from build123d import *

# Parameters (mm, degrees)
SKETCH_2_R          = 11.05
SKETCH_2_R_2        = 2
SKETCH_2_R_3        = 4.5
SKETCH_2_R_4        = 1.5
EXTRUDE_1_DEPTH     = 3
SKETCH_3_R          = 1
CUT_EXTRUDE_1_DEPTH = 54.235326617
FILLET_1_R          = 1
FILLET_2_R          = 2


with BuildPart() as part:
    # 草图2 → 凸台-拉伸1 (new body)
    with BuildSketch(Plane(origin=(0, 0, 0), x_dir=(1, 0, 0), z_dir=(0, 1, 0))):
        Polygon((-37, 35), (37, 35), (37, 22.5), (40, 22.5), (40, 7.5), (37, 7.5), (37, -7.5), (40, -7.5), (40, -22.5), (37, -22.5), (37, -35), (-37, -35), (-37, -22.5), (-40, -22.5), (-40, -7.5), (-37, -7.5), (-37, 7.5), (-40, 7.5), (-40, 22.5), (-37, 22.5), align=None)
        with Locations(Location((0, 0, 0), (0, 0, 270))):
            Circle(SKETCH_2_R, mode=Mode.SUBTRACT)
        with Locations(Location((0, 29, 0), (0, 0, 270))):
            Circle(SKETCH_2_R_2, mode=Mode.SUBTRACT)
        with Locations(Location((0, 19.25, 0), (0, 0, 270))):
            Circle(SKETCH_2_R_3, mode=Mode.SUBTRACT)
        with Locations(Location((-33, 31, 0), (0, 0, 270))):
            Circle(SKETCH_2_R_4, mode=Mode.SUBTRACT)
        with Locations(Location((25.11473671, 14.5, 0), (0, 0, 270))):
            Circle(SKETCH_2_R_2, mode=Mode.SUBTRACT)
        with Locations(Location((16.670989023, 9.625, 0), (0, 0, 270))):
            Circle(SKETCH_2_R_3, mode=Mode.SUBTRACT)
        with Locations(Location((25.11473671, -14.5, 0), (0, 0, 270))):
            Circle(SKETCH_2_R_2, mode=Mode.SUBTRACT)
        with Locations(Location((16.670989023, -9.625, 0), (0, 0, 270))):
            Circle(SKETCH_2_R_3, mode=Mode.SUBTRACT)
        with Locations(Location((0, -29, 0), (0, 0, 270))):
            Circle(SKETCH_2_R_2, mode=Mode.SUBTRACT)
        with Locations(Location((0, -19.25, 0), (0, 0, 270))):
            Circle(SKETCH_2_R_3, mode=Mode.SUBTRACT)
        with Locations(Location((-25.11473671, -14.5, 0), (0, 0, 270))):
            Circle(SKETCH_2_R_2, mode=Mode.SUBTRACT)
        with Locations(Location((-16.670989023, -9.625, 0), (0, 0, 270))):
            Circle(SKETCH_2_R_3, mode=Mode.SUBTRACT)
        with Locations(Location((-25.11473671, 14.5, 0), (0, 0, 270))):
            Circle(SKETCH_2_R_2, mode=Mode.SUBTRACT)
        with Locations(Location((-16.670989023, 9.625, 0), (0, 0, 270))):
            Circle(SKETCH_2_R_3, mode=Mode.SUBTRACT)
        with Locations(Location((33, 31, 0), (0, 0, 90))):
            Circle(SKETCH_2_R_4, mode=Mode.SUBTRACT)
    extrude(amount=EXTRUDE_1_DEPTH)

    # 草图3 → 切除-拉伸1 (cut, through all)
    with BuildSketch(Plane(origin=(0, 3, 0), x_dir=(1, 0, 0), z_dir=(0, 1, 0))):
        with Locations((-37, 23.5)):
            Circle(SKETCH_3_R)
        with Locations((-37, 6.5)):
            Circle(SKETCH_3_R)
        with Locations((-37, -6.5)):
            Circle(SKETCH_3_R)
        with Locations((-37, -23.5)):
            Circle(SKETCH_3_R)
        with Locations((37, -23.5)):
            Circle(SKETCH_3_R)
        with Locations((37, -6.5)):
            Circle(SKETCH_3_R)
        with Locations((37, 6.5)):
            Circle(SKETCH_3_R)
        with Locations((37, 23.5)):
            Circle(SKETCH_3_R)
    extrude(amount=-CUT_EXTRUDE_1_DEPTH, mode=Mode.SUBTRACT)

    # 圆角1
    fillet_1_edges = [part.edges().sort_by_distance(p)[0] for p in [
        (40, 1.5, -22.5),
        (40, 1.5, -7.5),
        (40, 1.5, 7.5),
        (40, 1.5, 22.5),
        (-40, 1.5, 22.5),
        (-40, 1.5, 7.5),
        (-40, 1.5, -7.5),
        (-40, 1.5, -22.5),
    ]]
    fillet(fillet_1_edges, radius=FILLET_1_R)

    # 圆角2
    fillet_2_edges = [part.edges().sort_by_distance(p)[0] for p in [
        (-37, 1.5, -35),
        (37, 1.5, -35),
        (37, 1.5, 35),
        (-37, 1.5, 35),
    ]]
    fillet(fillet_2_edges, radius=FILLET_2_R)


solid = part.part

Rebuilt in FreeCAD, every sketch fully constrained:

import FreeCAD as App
import Part
import Sketcher

V = App.Vector


def edges_at(feature, points):
    """Names of the edges that pass closest to the given points."""
    edges = feature.Shape.Edges
    near = lambda p: min(range(len(edges)), key=lambda i: edges[i].distToShape(Part.Vertex(*p))[0])
    return sorted({f"Edge{near(p) + 1}" for p in points})


def add_polygon(sketch, points):
    """Adds a closed chain of lines whose ends are joined by coincident constraints."""
    first, n = sketch.GeometryCount, len(points)
    for a, b in zip(points, points[1:] + points[:1]):
        sketch.addGeometry(Part.LineSegment(App.Vector(*a, 0), App.Vector(*b, 0)), False)
    for i in range(n):
        sketch.addConstraint(Sketcher.Constraint("Coincident", first + i, 2, first + (i + 1) % n, 1))

doc = App.newDocument("Part")
params = doc.addObject("Spreadsheet::Sheet", "Params")
for row, (alias, value) in enumerate([
    ("sketch1_diameter", "4 mm"),
    ("sketch1_diameter2", "9 mm"),
    ("sketch1_diameter3", "3 mm"),
    ("sketch1_diameter4", "22.1 mm"),
    ("sketch1_width", "74 mm"),
    ("pad1_length", "3 mm"),
    ("sketch2_diameter", "2 mm"),
    ("fillet_radius", "1 mm"),
    ("fillet2_radius", "2 mm"),
], start=1):
    params.set(f"A{row}", alias)
    params.set(f"B{row}", "=" + value)
    params.setAlias(f"B{row}", alias)

body = doc.addObject("PartDesign::Body", "Body")

# Sketch on XZ plane
sketch1 = body.newObject("Sketcher::SketchObject", "Sketch")
sketch1.AttachmentSupport = (doc.getObject("XZ_Plane"), [""])
sketch1.MapMode = "FlatFace"
add_polygon(sketch1, [(37, -35), (-37, -35), (-37, -22.5), (-40, -22.5), (-40, -7.5), (-37, -7.5), (-37, 7.5), (-40, 7.5), (-40, 22.5), (-37, 22.5), (-37, 35), (37, 35), (37, 22.5), (40, 22.5), (40, 7.5), (37, 7.5), (37, -7.5), (40, -7.5), (40, -22.5), (37, -22.5)])  # lines 0-19
sketch1.addGeometry(Part.Circle(V(25.1, 14.5, 0), V(0, 0, 1), 2), False)  # 20
sketch1.addGeometry(Part.Circle(V(16.7, 9.6, 0), V(0, 0, 1), 4.5), False)  # 21
sketch1.addGeometry(Part.Circle(V(0, 29, 0), V(0, 0, 1), 2), False)  # 22
sketch1.addGeometry(Part.Circle(V(0, 19.2, 0), V(0, 0, 1), 4.5), False)  # 23
sketch1.addGeometry(Part.Circle(V(-16.7, 9.6, 0), V(0, 0, 1), 4.5), False)  # 24
sketch1.addGeometry(Part.Circle(V(0, 0, 0), V(0, 0, 1), 11.1), False)  # 25
sketch1.addGeometry(Part.Circle(V(-25.1, 14.5, 0), V(0, 0, 1), 2), False)  # 26
sketch1.addGeometry(Part.Circle(V(25.1, -14.5, 0), V(0, 0, 1), 2), False)  # 27
sketch1.addGeometry(Part.Circle(V(16.7, -9.6, 0), V(0, 0, 1), 4.5), False)  # 28
sketch1.addGeometry(Part.Circle(V(33, -31, 0), V(0, 0, 1), 1.5), False)  # 29
sketch1.addGeometry(Part.Circle(V(-16.7, -9.6, 0), V(0, 0, 1), 4.5), False)  # 30
sketch1.addGeometry(Part.Circle(V(-25.1, -14.5, 0), V(0, 0, 1), 2), False)  # 31
sketch1.addGeometry(Part.Circle(V(0, -19.2, 0), V(0, 0, 1), 4.5), False)  # 32
sketch1.addGeometry(Part.Circle(V(0, -29, 0), V(0, 0, 1), 2), False)  # 33
sketch1.addGeometry(Part.Circle(V(-33, -31, 0), V(0, 0, 1), 1.5), False)  # 34
sketch1.addConstraint(Sketcher.Constraint("Horizontal", 0))
sketch1.addConstraint(Sketcher.Constraint("Vertical", 1))
sketch1.addConstraint(Sketcher.Constraint("Horizontal", 2))
sketch1.addConstraint(Sketcher.Constraint("Vertical", 3))
sketch1.addConstraint(Sketcher.Constraint("Horizontal", 4))
sketch1.addConstraint(Sketcher.Constraint("Vertical", 5))
sketch1.addConstraint(Sketcher.Constraint("Horizontal", 6))
sketch1.addConstraint(Sketcher.Constraint("Vertical", 7))
sketch1.addConstraint(Sketcher.Constraint("Horizontal", 8))
sketch1.addConstraint(Sketcher.Constraint("Vertical", 9))
sketch1.addConstraint(Sketcher.Constraint("Horizontal", 10))
sketch1.addConstraint(Sketcher.Constraint("Vertical", 11))
sketch1.addConstraint(Sketcher.Constraint("Horizontal", 12))
sketch1.addConstraint(Sketcher.Constraint("Vertical", 13))
sketch1.addConstraint(Sketcher.Constraint("Horizontal", 14))
sketch1.addConstraint(Sketcher.Constraint("Vertical", 15))
sketch1.addConstraint(Sketcher.Constraint("Horizontal", 16))
sketch1.addConstraint(Sketcher.Constraint("Vertical", 17))
sketch1.addConstraint(Sketcher.Constraint("Horizontal", 18))
sketch1.addConstraint(Sketcher.Constraint("Vertical", 19))
sketch1.addConstraint(Sketcher.Constraint("Coincident", 25, 3, -1, 1))
sketch1.addConstraint(Sketcher.Constraint("Equal", 20, 22))
sketch1.addConstraint(Sketcher.Constraint("Equal", 21, 23))
sketch1.addConstraint(Sketcher.Constraint("Equal", 23, 24))
sketch1.addConstraint(Sketcher.Constraint("Equal", 22, 26))
sketch1.addConstraint(Sketcher.Constraint("Equal", 26, 27))
sketch1.addConstraint(Sketcher.Constraint("Equal", 24, 28))
sketch1.addConstraint(Sketcher.Constraint("Equal", 28, 30))
sketch1.addConstraint(Sketcher.Constraint("Equal", 27, 31))
sketch1.addConstraint(Sketcher.Constraint("Equal", 30, 32))
sketch1.addConstraint(Sketcher.Constraint("Equal", 31, 33))
sketch1.addConstraint(Sketcher.Constraint("Equal", 29, 34))
sketch1.addConstraint(Sketcher.Constraint("Symmetric", 26, 3, 27, 3, -1, 1))
sketch1.addConstraint(Sketcher.Constraint("Symmetric", 24, 3, 28, 3, -1, 1))
sketch1.addConstraint(Sketcher.Constraint("Symmetric", 21, 3, 30, 3, -1, 1))
sketch1.addConstraint(Sketcher.Constraint("Symmetric", 20, 3, 31, 3, -1, 1))
sketch1.addConstraint(Sketcher.Constraint("Symmetric", 23, 3, 32, 3, -1, 1))
sketch1.addConstraint(Sketcher.Constraint("Symmetric", 22, 3, 33, 3, -1, 1))
sketch1.addConstraint(Sketcher.Constraint("Symmetric", 0, 2, 10, 2, -1, 1))
sketch1.addConstraint(Sketcher.Constraint("Symmetric", 2, 2, 12, 2, -1, 1))
sketch1.addConstraint(Sketcher.Constraint("Symmetric", 4, 2, 14, 2, -1, 1))
sketch1.addConstraint(Sketcher.Constraint("Symmetric", 6, 2, 16, 2, -1, 1))
sketch1.addConstraint(Sketcher.Constraint("Symmetric", 8, 2, 18, 2, -1, 1))
sketch1.addConstraint(Sketcher.Constraint("Symmetric", 21, 3, 24, 3, -2))
sketch1.addConstraint(Sketcher.Constraint("Symmetric", 20, 3, 26, 3, -2))
sketch1.addConstraint(Sketcher.Constraint("Symmetric", 29, 3, 34, 3, -2))
sketch1.addConstraint(Sketcher.Constraint("Symmetric", 8, 2, 11, 2, -2))
sketch1.addConstraint(Sketcher.Constraint("Symmetric", 6, 2, 13, 2, -2))
sketch1.addConstraint(Sketcher.Constraint("PointOnObject", 22, 3, -2))
sketch1.addConstraint(Sketcher.Constraint("PointOnObject", 23, 3, -2))
sketch1.addConstraint(Sketcher.Constraint("Vertical", 1, 2, 4, 2))
sketch1.addConstraint(Sketcher.Constraint("Equal", 3, 5))
sketch1.addConstraint(Sketcher.Constraint("Diameter", 20, 4.0))
sketch1.addConstraint(Sketcher.Constraint("Diameter", 21, 9.0))
sketch1.addConstraint(Sketcher.Constraint("Diameter", 29, 3.0))
sketch1.addConstraint(Sketcher.Constraint("Diameter", 25, 22.1))
sketch1.addConstraint(Sketcher.Constraint("DistanceX", 0, 2, 0, 1, 74.0))
sketch1.addConstraint(Sketcher.Constraint("DistanceX", 2, 2, 2, 1, 3.0))
sketch1.addConstraint(Sketcher.Constraint("DistanceY", 3, 1, 3, 2, 15.0))
sketch1.addConstraint(Sketcher.Constraint("DistanceY", 1, 1, 1, 2, 12.5))
sketch1.addConstraint(Sketcher.Constraint("DistanceY", -1, 1, 22, 3, 29.0))
sketch1.addConstraint(Sketcher.Constraint("DistanceX", -1, 1, 29, 3, 33.0))
sketch1.addConstraint(Sketcher.Constraint("DistanceY", 29, 3, -1, 1, 31.0))
sketch1.addConstraint(Sketcher.Constraint("DistanceY", 27, 3, 20, 3, 29.0))
sketch1.addConstraint(Sketcher.Constraint("DistanceY", -1, 1, 23, 3, 19.25))
sketch1.addConstraint(Sketcher.Constraint("DistanceY", 28, 3, 21, 3, 19.25))
sketch1.addConstraint(Sketcher.Constraint("DistanceX", -1, 1, 21, 3, 16.670989))
sketch1.addConstraint(Sketcher.Constraint("DistanceX", -1, 1, 20, 3, 25.114737))
sketch1.setExpression("Constraints[72]", "Params.sketch1_diameter")
sketch1.setExpression("Constraints[73]", "Params.sketch1_diameter2")
sketch1.setExpression("Constraints[74]", "Params.sketch1_diameter3")
sketch1.setExpression("Constraints[75]", "Params.sketch1_diameter4")
sketch1.setExpression("Constraints[76]", "Params.sketch1_width")
pad1 = body.newObject("PartDesign::Pad", "Pad")
pad1.Profile = sketch1
pad1.setExpression("Length", "Params.pad1_length")
pad1.Reversed = True

# Sketch on XZ plane
sketch2 = body.newObject("Sketcher::SketchObject", "Sketch001")
sketch2.AttachmentSupport = (doc.getObject("XZ_Plane"), [""])
sketch2.MapMode = "FlatFace"
sketch2.AttachmentOffset = App.Placement(V(0, 0, -3), App.Rotation())
sketch2.addGeometry(Part.Circle(V(-37, -23.5, 0), V(0, 0, 1), 1), False)
sketch2.addGeometry(Part.Circle(V(-37, -6.5, 0), V(0, 0, 1), 1), False)
sketch2.addGeometry(Part.Circle(V(-37, 6.5, 0), V(0, 0, 1), 1), False)
sketch2.addGeometry(Part.Circle(V(-37, 23.5, 0), V(0, 0, 1), 1), False)
sketch2.addGeometry(Part.Circle(V(37, 23.5, 0), V(0, 0, 1), 1), False)
sketch2.addGeometry(Part.Circle(V(37, 6.5, 0), V(0, 0, 1), 1), False)
sketch2.addGeometry(Part.Circle(V(37, -6.5, 0), V(0, 0, 1), 1), False)
sketch2.addGeometry(Part.Circle(V(37, -23.5, 0), V(0, 0, 1), 1), False)
sketch2.addConstraint(Sketcher.Constraint("Equal", 0, 1))
sketch2.addConstraint(Sketcher.Constraint("Equal", 1, 2))
sketch2.addConstraint(Sketcher.Constraint("Equal", 2, 3))
sketch2.addConstraint(Sketcher.Constraint("Equal", 3, 4))
sketch2.addConstraint(Sketcher.Constraint("Equal", 4, 5))
sketch2.addConstraint(Sketcher.Constraint("Equal", 5, 6))
sketch2.addConstraint(Sketcher.Constraint("Equal", 6, 7))
sketch2.addConstraint(Sketcher.Constraint("Symmetric", 0, 3, 4, 3, -1, 1))
sketch2.addConstraint(Sketcher.Constraint("Symmetric", 1, 3, 5, 3, -1, 1))
sketch2.addConstraint(Sketcher.Constraint("Symmetric", 2, 3, 6, 3, -1, 1))
sketch2.addConstraint(Sketcher.Constraint("Symmetric", 3, 3, 7, 3, -1, 1))
sketch2.addConstraint(Sketcher.Constraint("Symmetric", 3, 3, 4, 3, -2))
sketch2.addConstraint(Sketcher.Constraint("Symmetric", 2, 3, 5, 3, -2))
sketch2.addConstraint(Sketcher.Constraint("Vertical", 0, 3, 1, 3))
sketch2.addConstraint(Sketcher.Constraint("Diameter", 0, 2.0))
sketch2.addConstraint(Sketcher.Constraint("DistanceX", 0, 3, -1, 1, 37.0))
sketch2.addConstraint(Sketcher.Constraint("DistanceY", 0, 3, 1, 3, 17.0))
sketch2.addConstraint(Sketcher.Constraint("DistanceY", 1, 3, 2, 3, 13.0))
sketch2.setExpression("Constraints[14]", "Params.sketch2_diameter")
pocket1 = body.newObject("PartDesign::Pocket", "Pocket")
pocket1.Profile = sketch2
pocket1.Type = "ThroughAll"
pocket1.Reversed = True
doc.recompute()

fillet = body.newObject("PartDesign::Fillet", "Fillet")
fillet.Base = (pocket1, edges_at(pocket1, [
    (40, 1.5, -22.5),
    (40, 1.5, -7.5),
    (40, 1.5, 7.5),
    (40, 1.5, 22.5),
    (-40, 1.5, 22.5),
    (-40, 1.5, 7.5),
    (-40, 1.5, -7.5),
    (-40, 1.5, -22.5),
]))
fillet.setExpression("Radius", "Params.fillet_radius")
doc.recompute()

fillet2 = body.newObject("PartDesign::Fillet", "Fillet001")
fillet2.Base = (fillet, edges_at(fillet, [
    (-37, 1.5, -35),
    (37, 1.5, -35),
    (37, 1.5, 35),
    (-37, 1.5, 35),
]))
fillet2.setExpression("Radius", "Params.fillet2_radius")

doc.recompute()
